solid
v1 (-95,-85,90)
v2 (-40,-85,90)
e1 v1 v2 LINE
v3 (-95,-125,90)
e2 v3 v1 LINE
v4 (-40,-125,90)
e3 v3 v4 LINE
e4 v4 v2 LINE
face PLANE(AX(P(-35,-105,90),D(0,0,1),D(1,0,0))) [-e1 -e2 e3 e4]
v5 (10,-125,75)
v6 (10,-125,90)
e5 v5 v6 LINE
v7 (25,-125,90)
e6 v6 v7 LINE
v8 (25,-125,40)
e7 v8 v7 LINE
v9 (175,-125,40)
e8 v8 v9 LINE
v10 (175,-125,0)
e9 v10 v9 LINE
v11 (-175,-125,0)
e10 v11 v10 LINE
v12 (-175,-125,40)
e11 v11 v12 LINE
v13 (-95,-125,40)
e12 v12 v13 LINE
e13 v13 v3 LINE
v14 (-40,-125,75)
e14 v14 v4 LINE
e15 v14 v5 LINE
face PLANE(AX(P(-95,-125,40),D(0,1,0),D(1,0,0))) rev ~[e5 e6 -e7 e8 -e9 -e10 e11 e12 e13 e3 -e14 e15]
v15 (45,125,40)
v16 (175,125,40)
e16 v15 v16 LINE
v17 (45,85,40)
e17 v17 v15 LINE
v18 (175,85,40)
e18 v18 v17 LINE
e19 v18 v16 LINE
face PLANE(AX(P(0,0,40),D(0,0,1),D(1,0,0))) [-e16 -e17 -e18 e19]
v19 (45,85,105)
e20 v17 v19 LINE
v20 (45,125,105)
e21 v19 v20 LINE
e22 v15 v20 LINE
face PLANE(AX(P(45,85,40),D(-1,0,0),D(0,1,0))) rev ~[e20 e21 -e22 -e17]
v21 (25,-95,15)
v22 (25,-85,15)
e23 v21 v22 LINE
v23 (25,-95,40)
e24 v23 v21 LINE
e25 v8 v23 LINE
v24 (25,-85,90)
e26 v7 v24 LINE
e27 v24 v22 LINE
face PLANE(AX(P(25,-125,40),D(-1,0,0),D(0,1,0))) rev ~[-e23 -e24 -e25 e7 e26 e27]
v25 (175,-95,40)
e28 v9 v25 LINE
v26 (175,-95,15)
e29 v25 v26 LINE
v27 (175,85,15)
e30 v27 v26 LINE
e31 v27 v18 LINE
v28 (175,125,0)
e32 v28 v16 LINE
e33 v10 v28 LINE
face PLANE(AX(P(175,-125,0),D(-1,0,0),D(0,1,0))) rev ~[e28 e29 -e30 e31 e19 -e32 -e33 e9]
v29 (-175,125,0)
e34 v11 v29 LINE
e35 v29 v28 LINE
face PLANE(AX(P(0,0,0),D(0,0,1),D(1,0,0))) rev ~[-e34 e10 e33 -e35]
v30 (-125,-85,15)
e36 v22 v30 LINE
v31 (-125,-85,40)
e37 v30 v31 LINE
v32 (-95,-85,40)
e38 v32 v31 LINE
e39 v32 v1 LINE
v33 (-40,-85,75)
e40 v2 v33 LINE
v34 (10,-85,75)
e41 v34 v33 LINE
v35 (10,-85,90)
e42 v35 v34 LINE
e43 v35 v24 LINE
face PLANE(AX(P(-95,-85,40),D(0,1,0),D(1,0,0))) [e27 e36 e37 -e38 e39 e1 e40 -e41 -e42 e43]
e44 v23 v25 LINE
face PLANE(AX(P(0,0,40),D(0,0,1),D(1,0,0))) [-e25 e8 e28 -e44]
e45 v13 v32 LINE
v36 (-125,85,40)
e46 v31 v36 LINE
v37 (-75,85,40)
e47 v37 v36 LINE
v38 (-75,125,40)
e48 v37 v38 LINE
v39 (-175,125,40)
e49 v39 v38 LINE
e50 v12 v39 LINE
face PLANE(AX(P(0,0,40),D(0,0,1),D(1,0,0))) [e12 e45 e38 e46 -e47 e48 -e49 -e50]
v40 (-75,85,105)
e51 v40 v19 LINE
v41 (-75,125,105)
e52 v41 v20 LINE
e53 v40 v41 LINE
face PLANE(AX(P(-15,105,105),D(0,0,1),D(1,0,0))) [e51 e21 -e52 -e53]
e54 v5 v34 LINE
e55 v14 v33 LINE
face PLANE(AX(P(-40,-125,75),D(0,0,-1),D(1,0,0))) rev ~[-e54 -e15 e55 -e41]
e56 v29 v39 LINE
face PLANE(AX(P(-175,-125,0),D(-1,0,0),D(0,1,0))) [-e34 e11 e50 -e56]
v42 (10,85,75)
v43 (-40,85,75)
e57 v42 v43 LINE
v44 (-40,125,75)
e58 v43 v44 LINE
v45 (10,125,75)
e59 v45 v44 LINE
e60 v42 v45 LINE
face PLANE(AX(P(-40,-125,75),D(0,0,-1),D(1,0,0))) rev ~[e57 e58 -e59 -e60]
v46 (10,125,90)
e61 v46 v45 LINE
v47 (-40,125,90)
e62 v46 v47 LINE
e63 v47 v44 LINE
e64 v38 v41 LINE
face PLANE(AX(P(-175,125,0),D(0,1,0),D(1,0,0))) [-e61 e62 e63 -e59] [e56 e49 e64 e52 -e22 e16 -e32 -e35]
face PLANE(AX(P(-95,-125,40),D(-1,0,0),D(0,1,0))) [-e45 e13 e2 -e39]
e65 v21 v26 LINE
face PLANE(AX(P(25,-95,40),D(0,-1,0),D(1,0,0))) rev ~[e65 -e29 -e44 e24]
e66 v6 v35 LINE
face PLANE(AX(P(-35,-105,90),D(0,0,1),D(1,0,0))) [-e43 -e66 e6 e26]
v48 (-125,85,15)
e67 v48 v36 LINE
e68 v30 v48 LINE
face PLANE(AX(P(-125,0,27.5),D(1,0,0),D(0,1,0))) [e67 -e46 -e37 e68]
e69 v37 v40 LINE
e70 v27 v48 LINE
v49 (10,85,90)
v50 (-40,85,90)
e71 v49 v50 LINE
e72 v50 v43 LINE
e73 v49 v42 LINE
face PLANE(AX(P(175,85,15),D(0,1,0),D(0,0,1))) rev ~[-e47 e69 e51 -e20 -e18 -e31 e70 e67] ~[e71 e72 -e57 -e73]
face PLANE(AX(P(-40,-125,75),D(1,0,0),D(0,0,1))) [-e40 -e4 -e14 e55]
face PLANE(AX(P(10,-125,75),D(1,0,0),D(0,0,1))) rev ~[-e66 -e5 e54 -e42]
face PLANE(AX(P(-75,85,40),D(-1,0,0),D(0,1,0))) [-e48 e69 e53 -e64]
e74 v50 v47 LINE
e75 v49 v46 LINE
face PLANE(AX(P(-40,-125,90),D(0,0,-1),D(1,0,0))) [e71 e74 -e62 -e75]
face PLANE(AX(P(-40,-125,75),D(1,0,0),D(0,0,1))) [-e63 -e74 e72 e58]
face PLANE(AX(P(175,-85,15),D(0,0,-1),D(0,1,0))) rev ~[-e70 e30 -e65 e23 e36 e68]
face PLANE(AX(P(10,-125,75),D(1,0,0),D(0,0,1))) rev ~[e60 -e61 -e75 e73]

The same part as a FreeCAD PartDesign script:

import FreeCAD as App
import Part
import Sketcher
from FreeCAD import Vector
Q = App.Units.Quantity

doc = App.newDocument("Part")
body = doc.addObject("PartDesign::Body", "Body")

sketch1 = doc.addObject("Sketcher::SketchObject", "Sketch")
body.addObject(sketch1)
sketch1.AttachmentSupport = (doc.XY_Plane, [""])
sketch1.MapMode = "FlatFace"
sketch1.addGeometry(Part.LineSegment(Vector(-175, 125, 0), Vector(-175, -125, 0)), False)
sketch1.addGeometry(Part.LineSegment(Vector(-175, -125, 0), Vector(175, -125, 0)), False)
sketch1.addGeometry(Part.LineSegment(Vector(175, -125, 0), Vector(175, 125, 0)), False)
sketch1.addGeometry(Part.LineSegment(Vector(175, 125, 0), Vector(-175, 125, 0)), False)
sketch1.addConstraint(Sketcher.Constraint("Coincident", 0, 2, 1, 1))
sketch1.addConstraint(Sketcher.Constraint("Coincident", 1, 2, 2, 1))
sketch1.addConstraint(Sketcher.Constraint("Coincident", 2, 2, 3, 1))
sketch1.addConstraint(Sketcher.Constraint("Coincident", 3, 2, 0, 1))
sketch1.addConstraint(Sketcher.Constraint("Vertical", 0))
sketch1.addConstraint(Sketcher.Constraint("Horizontal", 1))
sketch1.addConstraint(Sketcher.Constraint("Vertical", 2))
sketch1.addConstraint(Sketcher.Constraint("Horizontal", 3))
sketch1.addConstraint(Sketcher.Constraint("Symmetric", 0, 2, 2, 2, -1, 1))
sketch1.addConstraint(Sketcher.Constraint("DistanceX", 1, 1, 1, 2, Q("350 mm")))
sketch1.addConstraint(Sketcher.Constraint("DistanceY", 0, 2, 0, 1, Q("250 mm")))
pad1 = doc.addObject("PartDesign::Pad", "Pad")
body.addObject(pad1)
pad1.Profile = sketch1
pad1.Length = 40

sketch2 = doc.addObject("Sketcher::SketchObject", "Sketch001")
body.addObject(sketch2)
sketch2.AttachmentSupport = (doc.YZ_Plane, [""])
sketch2.MapMode = "FlatFace"
sketch2.AttachmentOffset = App.Placement(Vector(0, 0, 175), App.Rotation())
sketch2.addGeometry(Part.LineSegment(Vector(-85, 40, 0), Vector(-85, 15, 0)), False)
sketch2.addGeometry(Part.LineSegment(Vector(-85, 15, 0), Vector(85, 15, 0)), False)
sketch2.addGeometry(Part.LineSegment(Vector(85, 15, 0), Vector(85, 40, 0)), False)
sketch2.addGeometry(Part.LineSegment(Vector(85, 40, 0), Vector(-85, 40, 0)), False)
sketch2.addConstraint(Sketcher.Constraint("Coincident", 0, 2, 1, 1))
sketch2.addConstraint(Sketcher.Constraint("Coincident", 1, 2, 2, 1))
sketch2.addConstraint(Sketcher.Constraint("Coincident", 2, 2, 3, 1))
sketch2.addConstraint(Sketcher.Constraint("Coincident", 3, 2, 0, 1))
sketch2.addConstraint(Sketcher.Constraint("Vertical", 0))
sketch2.addConstraint(Sketcher.Constraint("Horizontal", 1))
sketch2.addConstraint(Sketcher.Constraint("Vertical", 2))
sketch2.addConstraint(Sketcher.Constraint("Horizontal", 3))
sketch2.addConstraint(Sketcher.Constraint("DistanceX", 1, 1, 1, 2, Q("170 mm")))
sketch2.addConstraint(Sketcher.Constraint("DistanceY", 0, 2, 0, 1, Q("25 mm")))
sketch2.addConstraint(Sketcher.Constraint("DistanceX", 0, 2, -1, 1, Q("85 mm")))
sketch2.addConstraint(Sketcher.Constraint("DistanceY", -1, 1, 0, 2, Q("15 mm")))
pocket1 = doc.addObject("PartDesign::Pocket", "Pocket")
body.addObject(pocket1)
pocket1.Profile = sketch2
pocket1.Length = 300

sketch3 = doc.addObject("Sketcher::SketchObject", "Sketch002")
body.addObject(sketch3)
sketch3.AttachmentSupport = (doc.XY_Plane, [""])
sketch3.MapMode = "FlatFace"
sketch3.AttachmentOffset = App.Placement(Vector(0, 0, 40), App.Rotation())
sketch3.addGeometry(Part.LineSegment(Vector(25, -85, 0), Vector(25, -95, 0)), False)
sketch3.addGeometry(Part.LineSegment(Vector(25, -95, 0), Vector(175, -95, 0)), False)
sketch3.addGeometry(Part.LineSegment(Vector(175, -95, 0), Vector(175, -85, 0)), False)
sketch3.addGeometry(Part.LineSegment(Vector(175, -85, 0), Vector(25, -85, 0)), False)
sketch3.addConstraint(Sketcher.Constraint("Coincident", 0, 2, 1, 1))
sketch3.addConstraint(Sketcher.Constraint("Coincident", 1, 2, 2, 1))
sketch3.addConstraint(Sketcher.Constraint("Coincident", 2, 2, 3, 1))
sketch3.addConstraint(Sketcher.Constraint("Coincident", 3, 2, 0, 1))
sketch3.addConstraint(Sketcher.Constraint("Vertical", 0))
sketch3.addConstraint(Sketcher.Constraint("Horizontal", 1))
sketch3.addConstraint(Sketcher.Constraint("Vertical", 2))
sketch3.addConstraint(Sketcher.Constraint("Horizontal", 3))
sketch3.addConstraint(Sketcher.Constraint("DistanceX", 1, 1, 1, 2, Q("150 mm")))
sketch3.addConstraint(Sketcher.Constraint("DistanceY", 0, 2, 0, 1, Q("10 mm")))
sketch3.addConstraint(Sketcher.Constraint("DistanceX", -1, 1, 0, 2, Q("25 mm")))
sketch3.addConstraint(Sketcher.Constraint("DistanceY", 0, 2, -1, 1, Q("95 mm")))
pocket2 = doc.addObject("PartDesign::Pocket", "Pocket001")
body.addObject(pocket2)
pocket2.Profile = sketch3
pocket2.Length = 25

sketch4 = doc.addObject("Sketcher::SketchObject", "Sketch003")
body.addObject(sketch4)
sketch4.AttachmentSupport = (doc.XY_Plane, [""])
sketch4.MapMode = "FlatFace"
sketch4.AttachmentOffset = App.Placement(Vector(0, 0, 40), App.Rotation())
sketch4.addGeometry(Part.LineSegment(Vector(-95, -85, 0), Vector(-95, -125, 0)), False)
sketch4.addGeometry(Part.LineSegment(Vector(-95, -125, 0), Vector(25, -125, 0)), False)
sketch4.addGeometry(Part.LineSegment(Vector(25, -125, 0), Vector(25, -85, 0)), False)
sketch4.addGeometry(Part.LineSegment(Vector(25, -85, 0), Vector(-95, -85, 0)), False)
sketch4.addConstraint(Sketcher.Constraint("Coincident", 0, 2, 1, 1))
sketch4.addConstraint(Sketcher.Constraint("Coincident", 1, 2, 2, 1))
sketch4.addConstraint(Sketcher.Constraint("Coincident", 2, 2, 3, 1))
sketch4.addConstraint(Sketcher.Constraint("Coincident", 3, 2, 0, 1))
sketch4.addConstraint(Sketcher.Constraint("Vertical", 0))
sketch4.addConstraint(Sketcher.Constraint("Horizontal", 1))
sketch4.addConstraint(Sketcher.Constraint("Vertical", 2))
sketch4.addConstraint(Sketcher.Constraint("Horizontal", 3))
sketch4.addConstraint(Sketcher.Constraint("DistanceX", 1, 1, 1, 2, Q("120 mm")))
sketch4.addConstraint(Sketcher.Constraint("DistanceY", 0, 2, 0, 1, Q("40 mm")))
sketch4.addConstraint(Sketcher.Constraint("DistanceX", 0, 2, -1, 1, Q("95 mm")))
sketch4.addConstraint(Sketcher.Constraint("DistanceY", 0, 2, -1, 1, Q("125 mm")))
pad2 = doc.addObject("PartDesign::Pad", "Pad001")
body.addObject(pad2)
pad2.Profile = sketch4
pad2.Length = 50

sketch5 = doc.addObject("Sketcher::SketchObject", "Sketch004")
body.addObject(sketch5)
sketch5.AttachmentSupport = (doc.XY_Plane, [""])
sketch5.MapMode = "FlatFace"
sketch5.AttachmentOffset = App.Placement(Vector(0, 0, 40), App.Rotation())
sketch5.addGeometry(Part.LineSegment(Vector(-75, 125, 0), Vector(-75, 85, 0)), False)
sketch5.addGeometry(Part.LineSegment(Vector(-75, 85, 0), Vector(45, 85, 0)), False)
sketch5.addGeometry(Part.LineSegment(Vector(45, 85, 0), Vector(45, 125, 0)), False)
sketch5.addGeometry(Part.LineSegment(Vector(45, 125, 0), Vector(-75, 125, 0)), False)
sketch5.addConstraint(Sketcher.Constraint("Coincident", 0, 2, 1, 1))
sketch5.addConstraint(Sketcher.Constraint("Coincident", 1, 2, 2, 1))
sketch5.addConstraint(Sketcher.Constraint("Coincident", 2, 2, 3, 1))
sketch5.addConstraint(Sketcher.Constraint("Coincident", 3, 2, 0, 1))
sketch5.addConstraint(Sketcher.Constraint("Vertical", 0))
sketch5.addConstraint(Sketcher.Constraint("Horizontal", 1))
sketch5.addConstraint(Sketcher.Constraint("Vertical", 2))
sketch5.addConstraint(Sketcher.Constraint("Horizontal", 3))
sketch5.addConstraint(Sketcher.Constraint("DistanceX", 1, 1, 1, 2, Q("120 mm")))
sketch5.addConstraint(Sketcher.Constraint("DistanceY", 0, 2, 0, 1, Q("40 mm")))
sketch5.addConstraint(Sketcher.Constraint("DistanceX", 0, 2, -1, 1, Q("75 mm")))
sketch5.addConstraint(Sketcher.Constraint("DistanceY", -1, 1, 0, 2, Q("85 mm")))
pad3 = doc.addObject("PartDesign::Pad", "Pad002")
body.addObject(pad3)
pad3.Profile = sketch5
pad3.Length = 65

sketch6 = doc.addObject("Sketcher::SketchObject", "Sketch005")
body.addObject(sketch6)
sketch6.AttachmentSupport = (doc.XZ_Plane, [""])
sketch6.MapMode = "FlatFace"
sketch6.AttachmentOffset = App.Placement(Vector(0, 0, 125), App.Rotation())
sketch6.addGeometry(Part.LineSegment(Vector(-40, 90, 0), Vector(-40, 75, 0)), False)
sketch6.addGeometry(Part.LineSegment(Vector(-40, 75, 0), Vector(10, 75, 0)), False)
sketch6.addGeometry(Part.LineSegment(Vector(10, 75, 0), Vector(10, 90, 0)), False)
sketch6.addGeometry(Part.LineSegment(Vector(10, 90, 0), Vector(-40, 90, 0)), False)
sketch6.addConstraint(Sketcher.Constraint("Coincident", 0, 2, 1, 1))
sketch6.addConstraint(Sketcher.Constraint("Coincident", 1, 2, 2, 1))
sketch6.addConstraint(Sketcher.Constraint("Coincident", 2, 2, 3, 1))
sketch6.addConstraint(Sketcher.Constraint("Coincident", 3, 2, 0, 1))
sketch6.addConstraint(Sketcher.Constraint("Vertical", 0))
sketch6.addConstraint(Sketcher.Constraint("Horizontal", 1))
sketch6.addConstraint(Sketcher.Constraint("Vertical", 2))
sketch6.addConstraint(Sketcher.Constraint("Horizontal", 3))
sketch6.addConstraint(Sketcher.Constraint("DistanceX", 1, 1, 1, 2, Q("50 mm")))
sketch6.addConstraint(Sketcher.Constraint("DistanceY", 0, 2, 0, 1, Q("15 mm")))
sketch6.addConstraint(Sketcher.Constraint("DistanceX", 0, 2, -1, 1, Q("40 mm")))
sketch6.addConstraint(Sketcher.Constraint("DistanceY", -1, 1, 0, 2, Q("75 mm")))
pocket3 = doc.addObject("PartDesign::Pocket", "Pocket002")
body.addObject(pocket3)
pocket3.Profile = sketch6
pocket3.Type = "ThroughAll"

doc.recompute()
